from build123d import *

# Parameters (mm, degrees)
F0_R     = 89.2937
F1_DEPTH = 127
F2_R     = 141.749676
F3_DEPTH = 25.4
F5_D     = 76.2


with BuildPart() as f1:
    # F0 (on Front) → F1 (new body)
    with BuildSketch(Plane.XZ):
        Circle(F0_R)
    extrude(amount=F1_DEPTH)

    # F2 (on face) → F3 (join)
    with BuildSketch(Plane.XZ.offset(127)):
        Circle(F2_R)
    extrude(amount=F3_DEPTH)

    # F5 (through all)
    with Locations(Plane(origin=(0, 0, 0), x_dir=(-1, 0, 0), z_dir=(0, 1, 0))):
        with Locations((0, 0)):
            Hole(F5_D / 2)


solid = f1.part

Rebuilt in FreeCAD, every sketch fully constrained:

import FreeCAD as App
import Part
import Sketcher
from FreeCAD import Vector
Q = App.Units.Quantity

doc = App.newDocument("Part")
body = doc.addObject("PartDesign::Body", "Body")

# Sketch on XZ plane
sketch1 = doc.addObject("Sketcher::SketchObject", "Sketch")
body.addObject(sketch1)
sketch1.AttachmentSupport = (doc.XZ_Plane, [""])
sketch1.MapMode = "FlatFace"
sketch1.addGeometry(Part.Circle(Vector(0, 0, 0), Vector(0, 0, 1), 89.2937), False)
sketch1.addConstraint([
    Sketcher.Constraint("Coincident", 0, 3, -1, 1),
    Sketcher.Constraint("Diameter", 0, Q("7.031 in")),
])
pad1 = doc.addObject("PartDesign::Pad", "Pad")
body.addObject(pad1)
pad1.Profile = sketch1
pad1.Length = Q("5 in")

# Sketch on XZ plane
sketch2 = doc.addObject("Sketcher::SketchObject", "Sketch001")
body.addObject(sketch2)
sketch2.AttachmentSupport = (doc.XZ_Plane, [""])
sketch2.MapMode = "FlatFace"
sketch2.AttachmentOffset = App.Placement(Vector(0, 0, 5 * 25.4), App.Rotation())
sketch2.addGeometry(Part.Circle(Vector(0, 0, 0), Vector(0, 0, 1), 141.749676), False)
sketch2.addConstraint([
    Sketcher.Constraint("Coincident", 0, 3, -1, 1),
    Sketcher.Constraint("Diameter", 0, Q("283.499352 mm")),
])
pad2 = doc.addObject("PartDesign::Pad", "Pad001")
body.addObject(pad2)
pad2.Profile = sketch2
pad2.Length = Q("1 in")

# Sketch on XZ plane
sketch3 = doc.addObject("Sketcher::SketchObject", "Sketch002")
body.addObject(sketch3)
sketch3.AttachmentSupport = (doc.XZ_Plane, [""])
sketch3.MapMode = "FlatFace"
sketch3.addGeometry(Part.Circle(Vector(0, 0, 0), Vector(0, 0, 1), 38.1), False)
sketch3.addConstraint([
    Sketcher.Constraint("Coincident", 0, 3, -1, 1),
    Sketcher.Constraint("Diameter", 0, Q("3 in")),
])
doc.recompute()
hole = doc.addObject("PartDesign::Hole", "Hole")
body.addObject(hole)
hole.Profile = sketch3
hole.ThreadType = "None"
hole.Diameter = Q("3 in")
hole.DepthType = "ThroughAll"
hole.Reversed = True

doc.recompute()
